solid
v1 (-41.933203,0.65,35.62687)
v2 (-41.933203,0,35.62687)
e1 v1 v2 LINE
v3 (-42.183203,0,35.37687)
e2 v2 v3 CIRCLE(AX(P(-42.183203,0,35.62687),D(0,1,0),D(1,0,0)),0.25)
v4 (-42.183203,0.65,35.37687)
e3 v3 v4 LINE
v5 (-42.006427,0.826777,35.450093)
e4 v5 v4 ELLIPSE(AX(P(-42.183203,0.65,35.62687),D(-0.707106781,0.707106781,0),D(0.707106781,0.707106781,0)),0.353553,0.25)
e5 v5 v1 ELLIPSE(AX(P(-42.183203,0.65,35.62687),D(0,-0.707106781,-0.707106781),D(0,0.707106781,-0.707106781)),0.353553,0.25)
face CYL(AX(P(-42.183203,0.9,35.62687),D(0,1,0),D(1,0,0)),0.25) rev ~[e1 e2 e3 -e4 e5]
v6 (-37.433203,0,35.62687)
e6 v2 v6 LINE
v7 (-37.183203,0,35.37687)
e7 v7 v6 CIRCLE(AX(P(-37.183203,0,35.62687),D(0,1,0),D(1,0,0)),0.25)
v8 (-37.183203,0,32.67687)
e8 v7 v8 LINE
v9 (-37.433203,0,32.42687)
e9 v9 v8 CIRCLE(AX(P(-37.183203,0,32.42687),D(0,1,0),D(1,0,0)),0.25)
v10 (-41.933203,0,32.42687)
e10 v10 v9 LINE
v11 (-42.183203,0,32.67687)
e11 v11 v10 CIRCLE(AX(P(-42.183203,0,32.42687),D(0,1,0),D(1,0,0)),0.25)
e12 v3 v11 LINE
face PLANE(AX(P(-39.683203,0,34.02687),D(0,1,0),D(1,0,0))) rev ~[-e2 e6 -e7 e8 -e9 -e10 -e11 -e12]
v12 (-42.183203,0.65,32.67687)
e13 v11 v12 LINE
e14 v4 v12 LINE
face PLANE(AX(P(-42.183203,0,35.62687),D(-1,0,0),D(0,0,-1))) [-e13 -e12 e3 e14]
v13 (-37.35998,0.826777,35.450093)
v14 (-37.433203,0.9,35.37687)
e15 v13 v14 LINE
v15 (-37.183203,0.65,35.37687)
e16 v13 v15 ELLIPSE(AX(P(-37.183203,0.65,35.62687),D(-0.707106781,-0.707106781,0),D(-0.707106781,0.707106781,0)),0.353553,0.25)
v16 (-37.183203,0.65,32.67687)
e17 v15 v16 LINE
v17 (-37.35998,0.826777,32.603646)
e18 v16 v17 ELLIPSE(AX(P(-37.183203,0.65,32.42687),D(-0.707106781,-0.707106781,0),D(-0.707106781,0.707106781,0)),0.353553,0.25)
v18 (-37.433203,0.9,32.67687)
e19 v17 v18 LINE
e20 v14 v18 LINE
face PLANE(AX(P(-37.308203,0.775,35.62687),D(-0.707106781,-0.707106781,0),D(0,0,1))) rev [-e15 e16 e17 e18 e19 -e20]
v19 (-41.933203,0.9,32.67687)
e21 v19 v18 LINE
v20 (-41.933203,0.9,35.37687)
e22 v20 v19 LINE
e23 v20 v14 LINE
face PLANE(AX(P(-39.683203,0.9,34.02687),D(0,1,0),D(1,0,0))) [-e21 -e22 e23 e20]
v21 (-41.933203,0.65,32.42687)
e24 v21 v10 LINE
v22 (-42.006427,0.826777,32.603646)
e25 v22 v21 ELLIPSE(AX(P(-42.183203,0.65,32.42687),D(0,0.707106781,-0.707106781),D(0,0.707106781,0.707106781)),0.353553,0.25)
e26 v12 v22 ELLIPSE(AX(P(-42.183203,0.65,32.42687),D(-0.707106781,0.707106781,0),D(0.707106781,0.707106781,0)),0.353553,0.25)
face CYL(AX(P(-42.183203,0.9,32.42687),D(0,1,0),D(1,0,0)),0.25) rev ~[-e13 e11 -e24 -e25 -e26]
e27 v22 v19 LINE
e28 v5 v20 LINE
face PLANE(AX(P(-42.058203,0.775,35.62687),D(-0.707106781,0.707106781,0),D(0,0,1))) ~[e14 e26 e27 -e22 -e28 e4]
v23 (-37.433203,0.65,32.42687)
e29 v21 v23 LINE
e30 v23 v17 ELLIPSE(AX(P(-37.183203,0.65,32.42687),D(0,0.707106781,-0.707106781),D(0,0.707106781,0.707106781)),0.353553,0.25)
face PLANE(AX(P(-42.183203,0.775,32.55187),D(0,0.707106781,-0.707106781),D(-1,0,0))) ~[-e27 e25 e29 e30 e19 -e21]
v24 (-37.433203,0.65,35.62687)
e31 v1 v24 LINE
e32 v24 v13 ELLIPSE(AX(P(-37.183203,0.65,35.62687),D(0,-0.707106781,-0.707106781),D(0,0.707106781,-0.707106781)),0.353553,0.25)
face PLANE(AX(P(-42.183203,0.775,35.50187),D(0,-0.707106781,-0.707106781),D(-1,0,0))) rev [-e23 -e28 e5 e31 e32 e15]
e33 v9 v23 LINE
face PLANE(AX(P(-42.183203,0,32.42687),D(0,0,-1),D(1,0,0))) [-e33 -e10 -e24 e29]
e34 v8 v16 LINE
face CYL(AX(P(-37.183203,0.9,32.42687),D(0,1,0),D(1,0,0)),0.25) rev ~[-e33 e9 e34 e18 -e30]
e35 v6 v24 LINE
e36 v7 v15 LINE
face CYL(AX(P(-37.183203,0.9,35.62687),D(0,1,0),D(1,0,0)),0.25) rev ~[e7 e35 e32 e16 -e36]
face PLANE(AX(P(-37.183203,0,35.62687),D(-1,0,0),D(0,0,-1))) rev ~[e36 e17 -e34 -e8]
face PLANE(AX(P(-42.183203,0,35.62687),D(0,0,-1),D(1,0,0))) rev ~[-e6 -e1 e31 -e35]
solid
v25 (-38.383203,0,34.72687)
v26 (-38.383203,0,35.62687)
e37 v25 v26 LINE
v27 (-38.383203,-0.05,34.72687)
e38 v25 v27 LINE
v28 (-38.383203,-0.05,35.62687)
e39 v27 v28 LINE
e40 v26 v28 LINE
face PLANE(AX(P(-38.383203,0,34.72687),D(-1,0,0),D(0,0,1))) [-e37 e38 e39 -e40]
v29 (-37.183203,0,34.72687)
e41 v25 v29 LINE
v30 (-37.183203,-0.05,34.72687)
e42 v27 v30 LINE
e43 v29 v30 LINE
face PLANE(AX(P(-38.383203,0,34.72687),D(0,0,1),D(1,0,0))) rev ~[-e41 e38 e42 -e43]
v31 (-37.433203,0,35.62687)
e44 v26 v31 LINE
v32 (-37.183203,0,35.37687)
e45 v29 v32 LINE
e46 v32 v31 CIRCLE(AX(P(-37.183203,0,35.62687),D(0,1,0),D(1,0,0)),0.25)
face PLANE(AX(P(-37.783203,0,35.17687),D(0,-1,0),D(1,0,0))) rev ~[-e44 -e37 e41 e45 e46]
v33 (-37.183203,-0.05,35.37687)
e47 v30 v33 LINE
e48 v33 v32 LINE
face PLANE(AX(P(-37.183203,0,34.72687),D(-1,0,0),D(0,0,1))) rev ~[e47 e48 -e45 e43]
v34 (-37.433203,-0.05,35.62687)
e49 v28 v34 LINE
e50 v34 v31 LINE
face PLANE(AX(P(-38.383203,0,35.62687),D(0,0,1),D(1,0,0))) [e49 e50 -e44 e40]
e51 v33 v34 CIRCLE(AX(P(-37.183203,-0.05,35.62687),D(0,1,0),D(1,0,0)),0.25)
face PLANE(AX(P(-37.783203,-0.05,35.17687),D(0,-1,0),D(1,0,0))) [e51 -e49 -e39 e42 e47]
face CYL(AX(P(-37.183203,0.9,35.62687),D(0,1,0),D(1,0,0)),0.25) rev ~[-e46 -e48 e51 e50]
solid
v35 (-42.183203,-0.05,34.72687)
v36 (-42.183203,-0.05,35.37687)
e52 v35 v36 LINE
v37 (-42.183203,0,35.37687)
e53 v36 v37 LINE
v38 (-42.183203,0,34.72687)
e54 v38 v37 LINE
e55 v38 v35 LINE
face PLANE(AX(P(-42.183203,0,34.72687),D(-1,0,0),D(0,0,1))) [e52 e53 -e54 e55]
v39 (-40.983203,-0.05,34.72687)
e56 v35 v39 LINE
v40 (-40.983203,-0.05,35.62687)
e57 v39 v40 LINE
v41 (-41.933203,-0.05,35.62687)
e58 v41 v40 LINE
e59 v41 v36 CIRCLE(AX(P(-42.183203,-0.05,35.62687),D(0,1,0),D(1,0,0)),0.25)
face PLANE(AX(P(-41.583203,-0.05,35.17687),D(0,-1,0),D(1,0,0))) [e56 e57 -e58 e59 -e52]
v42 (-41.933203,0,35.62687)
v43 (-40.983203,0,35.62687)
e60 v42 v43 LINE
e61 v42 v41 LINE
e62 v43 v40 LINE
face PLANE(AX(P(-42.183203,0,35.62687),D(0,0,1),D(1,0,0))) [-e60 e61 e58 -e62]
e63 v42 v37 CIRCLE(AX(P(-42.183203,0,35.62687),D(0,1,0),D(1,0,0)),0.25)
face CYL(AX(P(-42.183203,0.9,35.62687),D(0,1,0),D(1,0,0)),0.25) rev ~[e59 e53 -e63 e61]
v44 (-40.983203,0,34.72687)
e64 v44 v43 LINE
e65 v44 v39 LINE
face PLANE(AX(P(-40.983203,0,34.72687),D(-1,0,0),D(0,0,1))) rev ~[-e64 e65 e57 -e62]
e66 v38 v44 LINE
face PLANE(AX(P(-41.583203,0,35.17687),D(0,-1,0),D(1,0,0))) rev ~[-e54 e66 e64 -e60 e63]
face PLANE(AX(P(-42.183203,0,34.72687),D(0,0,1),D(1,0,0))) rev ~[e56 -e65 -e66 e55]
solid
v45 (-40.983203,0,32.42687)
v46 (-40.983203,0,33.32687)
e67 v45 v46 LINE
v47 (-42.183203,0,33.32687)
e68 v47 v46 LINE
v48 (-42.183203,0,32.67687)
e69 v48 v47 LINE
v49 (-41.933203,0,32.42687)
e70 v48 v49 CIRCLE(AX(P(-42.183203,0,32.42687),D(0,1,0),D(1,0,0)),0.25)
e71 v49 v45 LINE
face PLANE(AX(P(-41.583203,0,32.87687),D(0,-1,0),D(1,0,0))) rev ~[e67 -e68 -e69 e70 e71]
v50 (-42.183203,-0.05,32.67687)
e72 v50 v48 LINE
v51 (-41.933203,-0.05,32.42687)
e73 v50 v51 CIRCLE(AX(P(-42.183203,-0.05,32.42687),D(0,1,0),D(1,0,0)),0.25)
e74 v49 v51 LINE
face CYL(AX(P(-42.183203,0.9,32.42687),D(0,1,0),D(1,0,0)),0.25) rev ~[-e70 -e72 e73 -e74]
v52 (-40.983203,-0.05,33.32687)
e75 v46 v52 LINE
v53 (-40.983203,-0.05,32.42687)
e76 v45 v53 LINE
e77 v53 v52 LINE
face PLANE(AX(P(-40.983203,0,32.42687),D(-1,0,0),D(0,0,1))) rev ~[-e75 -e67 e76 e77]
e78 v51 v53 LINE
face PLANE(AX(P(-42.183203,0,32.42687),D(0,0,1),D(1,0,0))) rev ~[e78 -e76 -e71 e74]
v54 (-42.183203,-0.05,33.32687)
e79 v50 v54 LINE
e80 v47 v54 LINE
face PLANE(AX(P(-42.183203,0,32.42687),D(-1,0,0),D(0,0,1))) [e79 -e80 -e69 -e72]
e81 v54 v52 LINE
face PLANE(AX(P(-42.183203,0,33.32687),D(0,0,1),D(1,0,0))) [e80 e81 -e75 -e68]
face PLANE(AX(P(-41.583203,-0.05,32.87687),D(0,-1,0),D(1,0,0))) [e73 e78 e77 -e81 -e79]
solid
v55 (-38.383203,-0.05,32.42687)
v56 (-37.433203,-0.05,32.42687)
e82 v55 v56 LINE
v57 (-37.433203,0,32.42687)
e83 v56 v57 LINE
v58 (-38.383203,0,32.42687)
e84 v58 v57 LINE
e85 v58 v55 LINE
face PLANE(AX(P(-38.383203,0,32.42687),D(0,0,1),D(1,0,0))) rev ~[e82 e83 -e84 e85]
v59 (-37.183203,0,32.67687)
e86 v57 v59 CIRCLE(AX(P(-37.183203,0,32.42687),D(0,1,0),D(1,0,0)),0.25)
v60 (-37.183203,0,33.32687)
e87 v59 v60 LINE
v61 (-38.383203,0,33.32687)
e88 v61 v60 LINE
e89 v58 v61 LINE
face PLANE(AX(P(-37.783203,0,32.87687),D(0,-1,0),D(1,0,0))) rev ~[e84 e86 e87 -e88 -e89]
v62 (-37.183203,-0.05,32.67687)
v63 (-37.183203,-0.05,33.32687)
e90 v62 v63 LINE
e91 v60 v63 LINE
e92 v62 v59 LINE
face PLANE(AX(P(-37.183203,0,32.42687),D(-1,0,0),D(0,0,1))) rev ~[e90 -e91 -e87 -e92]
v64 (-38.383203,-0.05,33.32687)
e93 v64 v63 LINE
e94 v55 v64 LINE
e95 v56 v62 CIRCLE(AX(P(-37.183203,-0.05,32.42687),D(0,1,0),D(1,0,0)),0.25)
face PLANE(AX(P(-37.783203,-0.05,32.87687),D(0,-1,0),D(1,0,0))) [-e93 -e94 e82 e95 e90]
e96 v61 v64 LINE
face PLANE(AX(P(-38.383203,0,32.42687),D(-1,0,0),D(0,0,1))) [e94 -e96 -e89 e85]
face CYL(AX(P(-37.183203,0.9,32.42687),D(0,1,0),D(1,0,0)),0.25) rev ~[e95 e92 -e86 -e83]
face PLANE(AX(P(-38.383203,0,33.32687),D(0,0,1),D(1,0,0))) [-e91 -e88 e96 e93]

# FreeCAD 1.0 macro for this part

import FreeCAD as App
import Part
import Sketcher

V = App.Vector


def edges_at(feature, points):
    """Names of the edges that pass closest to the given points."""
    edges = feature.Shape.Edges
    near = lambda p: min(range(len(edges)), key=lambda i: edges[i].distToShape(Part.Vertex(*p))[0])
    return sorted({f"Edge{near(p) + 1}" for p in points})

doc = App.newDocument("Part")
body = doc.addObject("PartDesign::Body", "Body")

sketch1 = doc.addObject("Sketcher::SketchObject", "Sketch")
body.addObject(sketch1)
sketch1.AttachmentSupport = (doc.XZ_Plane, [""])
sketch1.MapMode = "FlatFace"
sketch1.addGeometry(Part.LineSegment(V(-42.2, 32.4, 0), V(-42.2, 35.6, 0)), False)
sketch1.addGeometry(Part.LineSegment(V(-42.2, 35.6, 0), V(-37.2, 35.6, 0)), False)
sketch1.addGeometry(Part.LineSegment(V(-37.2, 35.6, 0), V(-37.2, 32.4, 0)), False)
sketch1.addGeometry(Part.LineSegment(V(-37.2, 32.4, 0), V(-42.2, 32.4, 0)), False)
sketch1.addConstraint(Sketcher.Constraint("Coincident", 0, 2, 1, 1))
sketch1.addConstraint(Sketcher.Constraint("Coincident", 1, 2, 2, 1))
sketch1.addConstraint(Sketcher.Constraint("Coincident", 2, 2, 3, 1))
sketch1.addConstraint(Sketcher.Constraint("Coincident", 3, 2, 0, 1))
sketch1.addConstraint(Sketcher.Constraint("Vertical", 0))
sketch1.addConstraint(Sketcher.Constraint("Horizontal", 1))
sketch1.addConstraint(Sketcher.Constraint("Vertical", 2))
sketch1.addConstraint(Sketcher.Constraint("Horizontal", 3))
sketch1.addConstraint(Sketcher.Constraint("DistanceX", 1, 1, 1, 2, 5.0))
sketch1.addConstraint(Sketcher.Constraint("DistanceY", 0, 1, 0, 2, 3.2))
sketch1.addConstraint(Sketcher.Constraint("DistanceY", -1, 1, 0, 2, 35.62687))
sketch1.addConstraint(Sketcher.Constraint("DistanceX", 0, 2, -1, 1, 42.183203))
pad1 = doc.addObject("PartDesign::Pad", "Pad")
body.addObject(pad1)
pad1.Profile = sketch1
pad1.Length = 0.9
pad1.Reversed = True
doc.recompute()

chamfer = doc.addObject("PartDesign::Chamfer", "Chamfer")
body.addObject(chamfer)
chamfer.Base = (pad1, edges_at(pad1, [
    (-37.183, 0.9, 34.027),
    (-39.683, 0.9, 32.427),
    (-42.183, 0.9, 34.027),
    (-39.683, 0.9, 35.627),
]))
chamfer.Size = 0.25
body2 = doc.addObject("PartDesign::Body", "Body001")

sketch2 = doc.addObject("Sketcher::SketchObject", "Sketch001")
body2.addObject(sketch2)
sketch2.AttachmentSupport = (doc.getObject("XZ_Plane001"), [""])
sketch2.MapMode = "FlatFace"
sketch2.addGeometry(Part.LineSegment(V(-42.2, 35.6, 0), V(-42.2, 34.7, 0)), False)
sketch2.addGeometry(Part.LineSegment(V(-42.2, 34.7, 0), V(-41, 34.7, 0)), False)
sketch2.addGeometry(Part.LineSegment(V(-41, 34.7, 0), V(-41, 35.6, 0)), False)
sketch2.addGeometry(Part.LineSegment(V(-41, 35.6, 0), V(-42.2, 35.6, 0)), False)
sketch2.addConstraint(Sketcher.Constraint("Coincident", 0, 2, 1, 1))
sketch2.addConstraint(Sketcher.Constraint("Coincident", 1, 2, 2, 1))
sketch2.addConstraint(Sketcher.Constraint("Coincident", 2, 2, 3, 1))
sketch2.addConstraint(Sketcher.Constraint("Coincident", 3, 2, 0, 1))
sketch2.addConstraint(Sketcher.Constraint("Vertical", 0))
sketch2.addConstraint(Sketcher.Constraint("Horizontal", 1))
sketch2.addConstraint(Sketcher.Constraint("Vertical", 2))
sketch2.addConstraint(Sketcher.Constraint("Horizontal", 3))
sketch2.addConstraint(Sketcher.Constraint("DistanceX", 1, 1, 1, 2, 1.2))
sketch2.addConstraint(Sketcher.Constraint("DistanceY", 0, 2, 0, 1, 0.9))
sketch2.addConstraint(Sketcher.Constraint("DistanceY", -1, 1, 0, 2, 34.72687))
sketch2.addConstraint(Sketcher.Constraint("DistanceX", 0, 2, -1, 1, 42.183203))
pad2 = doc.addObject("PartDesign::Pad", "Pad001")
body2.addObject(pad2)
pad2.Profile = sketch2
pad2.Length = 0.05
body3 = doc.addObject("PartDesign::Body", "Body002")

sketch3 = doc.addObject("Sketcher::SketchObject", "Sketch002")
body3.addObject(sketch3)
sketch3.AttachmentSupport = (doc.getObject("XZ_Plane002"), [""])
sketch3.MapMode = "FlatFace"
sketch3.addGeometry(Part.LineSegment(V(-38.4, 35.6, 0), V(-38.4, 34.7, 0)), False)
sketch3.addGeometry(Part.LineSegment(V(-38.4, 34.7, 0), V(-37.2, 34.7, 0)), False)
sketch3.addGeometry(Part.LineSegment(V(-37.2, 34.7, 0), V(-37.2, 35.6, 0)), False)
sketch3.addGeometry(Part.LineSegment(V(-37.2, 35.6, 0), V(-38.4, 35.6, 0)), False)
sketch3.addConstraint(Sketcher.Constraint("Coincident", 0, 2, 1, 1))
sketch3.addConstraint(Sketcher.Constraint("Coincident", 1, 2, 2, 1))
sketch3.addConstraint(Sketcher.Constraint("Coincident", 2, 2, 3, 1))
sketch3.addConstraint(Sketcher.Constraint("Coincident", 3, 2, 0, 1))
sketch3.addConstraint(Sketcher.Constraint("Vertical", 0))
sketch3.addConstraint(Sketcher.Constraint("Horizontal", 1))
sketch3.addConstraint(Sketcher.Constraint("Vertical", 2))
sketch3.addConstraint(Sketcher.Constraint("Horizontal", 3))
sketch3.addConstraint(Sketcher.Constraint("DistanceX", 1, 1, 1, 2, 1.2))
sketch3.addConstraint(Sketcher.Constraint("DistanceY", 0, 2, 0, 1, 0.9))
sketch3.addConstraint(Sketcher.Constraint("DistanceY", -1, 1, 0, 2, 34.72687))
sketch3.addConstraint(Sketcher.Constraint("DistanceX", 0, 2, -1, 1, 38.383203))
pad3 = doc.addObject("PartDesign::Pad", "Pad002")
body3.addObject(pad3)
pad3.Profile = sketch3
pad3.Length = 0.05
body4 = doc.addObject("PartDesign::Body", "Body003")

sketch4 = doc.addObject("Sketcher::SketchObject", "Sketch003")
body4.addObject(sketch4)
sketch4.AttachmentSupport = (doc.getObject("XZ_Plane003"), [""])
sketch4.MapMode = "FlatFace"
sketch4.addGeometry(Part.LineSegment(V(-38.4, 33.3, 0), V(-38.4, 32.4, 0)), False)
sketch4.addGeometry(Part.LineSegment(V(-38.4, 32.4, 0), V(-37.2, 32.4, 0)), False)
sketch4.addGeometry(Part.LineSegment(V(-37.2, 32.4, 0), V(-37.2, 33.3, 0)), False)
sketch4.addGeometry(Part.LineSegment(V(-37.2, 33.3, 0), V(-38.4, 33.3, 0)), False)
sketch4.addConstraint(Sketcher.Constraint("Coincident", 0, 2, 1, 1))
sketch4.addConstraint(Sketcher.Constraint("Coincident", 1, 2, 2, 1))
sketch4.addConstraint(Sketcher.Constraint("Coincident", 2, 2, 3, 1))
sketch4.addConstraint(Sketcher.Constraint("Coincident", 3, 2, 0, 1))
sketch4.addConstraint(Sketcher.Constraint("Vertical", 0))
sketch4.addConstraint(Sketcher.Constraint("Horizontal", 1))
sketch4.addConstraint(Sketcher.Constraint("Vertical", 2))
sketch4.addConstraint(Sketcher.Constraint("Horizontal", 3))
sketch4.addConstraint(Sketcher.Constraint("DistanceX", 1, 1, 1, 2, 1.2))
sketch4.addConstraint(Sketcher.Constraint("DistanceY", 0, 2, 0, 1, 0.9))
sketch4.addConstraint(Sketcher.Constraint("DistanceY", -1, 1, 0, 2, 32.42687))
sketch4.addConstraint(Sketcher.Constraint("DistanceX", 0, 2, -1, 1, 38.383203))
pad4 = doc.addObject("PartDesign::Pad", "Pad003")
body4.addObject(pad4)
pad4.Profile = sketch4
pad4.Length = 0.05
body5 = doc.addObject("PartDesign::Body", "Body004")

sketch5 = doc.addObject("Sketcher::SketchObject", "Sketch004")
body5.addObject(sketch5)
sketch5.AttachmentSupport = (doc.getObject("XZ_Plane004"), [""])
sketch5.MapMode = "FlatFace"
sketch5.addGeometry(Part.LineSegment(V(-42.2, 33.3, 0), V(-42.2, 32.4, 0)), False)
sketch5.addGeometry(Part.LineSegment(V(-42.2, 32.4, 0), V(-41, 32.4, 0)), False)
sketch5.addGeometry(Part.LineSegment(V(-41, 32.4, 0), V(-41, 33.3, 0)), False)
sketch5.addGeometry(Part.LineSegment(V(-41, 33.3, 0), V(-42.2, 33.3, 0)), False)
sketch5.addConstraint(Sketcher.Constraint("Coincident", 0, 2, 1, 1))
sketch5.addConstraint(Sketcher.Constraint("Coincident", 1, 2, 2, 1))
sketch5.addConstraint(Sketcher.Constraint("Coincident", 2, 2, 3, 1))
sketch5.addConstraint(Sketcher.Constraint("Coincident", 3, 2, 0, 1))
sketch5.addConstraint(Sketcher.Constraint("Vertical", 0))
sketch5.addConstraint(Sketcher.Constraint("Horizontal", 1))
sketch5.addConstraint(Sketcher.Constraint("Vertical", 2))
sketch5.addConstraint(Sketcher.Constraint("Horizontal", 3))
sketch5.addConstraint(Sketcher.Constraint("DistanceX", 1, 1, 1, 2, 1.2))
sketch5.addConstraint(Sketcher.Constraint("DistanceY", 0, 2, 0, 1, 0.9))
sketch5.addConstraint(Sketcher.Constraint("DistanceY", -1, 1, 0, 2, 32.42687))
sketch5.addConstraint(Sketcher.Constraint("DistanceX", 0, 2, -1, 1, 42.183203))
pad5 = doc.addObject("PartDesign::Pad", "Pad004")
body5.addObject(pad5)
pad5.Profile = sketch5
pad5.Length = 0.05
body6 = doc.addObject("PartDesign::Body", "Body005")
body6.AllowCompound = True

sketch6 = doc.addObject("Sketcher::SketchObject", "Sketch005")
body6.addObject(sketch6)
sketch6.AttachmentSupport = (doc.getObject("XZ_Plane005"), [""])
sketch6.MapMode = "FlatFace"
sketch6.AttachmentOffset = App.Placement(V(0, 0, -0.9), App.Rotation())
sketch6.addGeometry(Part.Circle(V(-42.18, 32.43, 0), V(0, 0, 1), 0.25), False)
sketch6.addGeometry(Part.Circle(V(-37.18, 32.43, 0), V(0, 0, 1), 0.25), False)
sketch6.addGeometry(Part.Circle(V(-37.18, 35.63, 0), V(0, 0, 1), 0.25), False)
sketch6.addGeometry(Part.Circle(V(-42.18, 35.63, 0), V(0, 0, 1), 0.25), False)
sketch6.addConstraint(Sketcher.Constraint("Equal", 0, 1))
sketch6.addConstraint(Sketcher.Constraint("Equal", 1, 2))
sketch6.addConstraint(Sketcher.Constraint("Equal", 2, 3))
sketch6.addConstraint(Sketcher.Constraint("Horizontal", 0, 3, 1, 3))
sketch6.addConstraint(Sketcher.Constraint("Horizontal", 2, 3, 3, 3))
sketch6.addConstraint(Sketcher.Constraint("Vertical", 1, 3, 2, 3))
sketch6.addConstraint(Sketcher.Constraint("Vertical", 0, 3, 3, 3))
sketch6.addConstraint(Sketcher.Constraint("Diameter", 0, 0.5))
sketch6.addConstraint(Sketcher.Constraint("DistanceX", 0, 3, 1, 3, 5.0))
sketch6.addConstraint(Sketcher.Constraint("DistanceY", 1, 3, 2, 3, 3.2))
sketch6.addConstraint(Sketcher.Constraint("DistanceY", -1, 1, 0, 3, 32.42687))
sketch6.addConstraint(Sketcher.Constraint("DistanceX", 0, 3, -1, 1, 42.183203))
pad6 = doc.addObject("PartDesign::Pad", "Pad005")
body6.addObject(pad6)
pad6.Profile = sketch6
pad6.Length = 56.223174
doc.recompute()

body7 = doc.addObject("PartDesign::Body", "Body006")
body7.BaseFeature = body6
boolean = doc.addObject("PartDesign::Boolean", "Boolean")
body.addObject(boolean)
boolean.Type = "Cut"
boolean.addObjects([body7])
doc.recompute()

body8 = doc.addObject("PartDesign::Body", "Body007")
body8.BaseFeature = body6
boolean2 = doc.addObject("PartDesign::Boolean", "Boolean001")
body2.addObject(boolean2)
boolean2.Type = "Cut"
boolean2.addObjects([body8])
doc.recompute()

body9 = doc.addObject("PartDesign::Body", "Body008")
body9.BaseFeature = body6
boolean3 = doc.addObject("PartDesign::Boolean", "Boolean002")
body3.addObject(boolean3)
boolean3.Type = "Cut"
boolean3.addObjects([body9])
doc.recompute()

body10 = doc.addObject("PartDesign::Body", "Body009")
body10.BaseFeature = body6
boolean4 = doc.addObject("PartDesign::Boolean", "Boolean003")
body4.addObject(boolean4)
boolean4.Type = "Cut"
boolean4.addObjects([body10])
doc.recompute()

boolean5 = doc.addObject("PartDesign::Boolean", "Boolean004")
body5.addObject(boolean5)
boolean5.Type = "Cut"
boolean5.addObjects([body6])

doc.recompute()
